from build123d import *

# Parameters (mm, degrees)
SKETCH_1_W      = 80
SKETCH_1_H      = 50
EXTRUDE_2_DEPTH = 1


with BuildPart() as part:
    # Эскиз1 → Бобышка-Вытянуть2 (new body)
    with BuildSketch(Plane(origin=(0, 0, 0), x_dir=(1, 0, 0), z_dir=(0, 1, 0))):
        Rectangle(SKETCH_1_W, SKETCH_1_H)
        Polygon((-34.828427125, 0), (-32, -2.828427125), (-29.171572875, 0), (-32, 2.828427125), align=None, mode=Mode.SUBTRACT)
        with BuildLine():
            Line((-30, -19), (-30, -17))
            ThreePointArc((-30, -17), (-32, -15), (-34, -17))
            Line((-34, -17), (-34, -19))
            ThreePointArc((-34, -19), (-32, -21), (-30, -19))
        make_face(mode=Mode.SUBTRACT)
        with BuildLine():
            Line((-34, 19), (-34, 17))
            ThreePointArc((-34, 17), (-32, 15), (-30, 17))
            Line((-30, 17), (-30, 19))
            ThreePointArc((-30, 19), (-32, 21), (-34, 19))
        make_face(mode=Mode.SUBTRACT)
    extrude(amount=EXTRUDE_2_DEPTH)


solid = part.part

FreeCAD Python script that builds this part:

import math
import FreeCAD as App
import Part
import Sketcher
from FreeCAD import Vector
Q = App.Units.Quantity


def add_polygon(sketch, points):
    """Adds a closed chain of lines whose ends are joined by coincident constraints."""
    first, n = sketch.GeometryCount, len(points)
    for a, b in zip(points, points[1:] + points[:1]):
        sketch.addGeometry(Part.LineSegment(App.Vector(*a, 0), App.Vector(*b, 0)), False)
    for i in range(n):
        sketch.addConstraint(Sketcher.Constraint("Coincident", first + i, 2, first + (i + 1) % n, 1))

doc = App.newDocument("Part")
body = doc.addObject("PartDesign::Body", "Body")

# Sketch on XZ plane
sketch1 = body.newObject("Sketcher::SketchObject", "Sketch")
sketch1.AttachmentSupport = (doc.getObject("XZ_Plane"), [""])
sketch1.MapMode = "FlatFace"
add_polygon(sketch1, [(-40, -25), (-40, 25), (40, 25), (40, -25)])  # lines 0-3
sketch1.addGeometry(Part.LineSegment(Vector(-30, 17, 0), Vector(-30, 19, 0)), False)  # 4
sketch1.addGeometry(Part.ArcOfCircle(Part.Circle(Vector(-32, 19, 0), Vector(0, 0, 1), 2), math.radians(0), math.radians(180)), False)  # 5
sketch1.addGeometry(Part.LineSegment(Vector(-34, 19, 0), Vector(-34, 17, 0)), False)  # 6
sketch1.addGeometry(Part.ArcOfCircle(Part.Circle(Vector(-32, 17, 0), Vector(0, 0, 1), 2), math.radians(180), math.radians(360)), False)  # 7
add_polygon(sketch1, [(-32, 2.828427), (-34.828427, 0), (-32, -2.828427), (-29.171573, 0)])  # lines 8-11
sketch1.addGeometry(Part.LineSegment(Vector(-34, -17, 0), Vector(-34, -19, 0)), False)  # 12
sketch1.addGeometry(Part.ArcOfCircle(Part.Circle(Vector(-32, -19, 0), Vector(0, 0, 1), 2), math.radians(180), math.radians(360)), False)  # 13
sketch1.addGeometry(Part.LineSegment(Vector(-30, -19, 0), Vector(-30, -17, 0)), False)  # 14
sketch1.addGeometry(Part.ArcOfCircle(Part.Circle(Vector(-32, -17, 0), Vector(0, 0, 1), 2), math.radians(0), math.radians(180)), False)  # 15
sketch1.addConstraint([
    Sketcher.Constraint("Tangent", 4, 2, 5, 1),
    Sketcher.Constraint("Tangent", 5, 2, 6, 1),
    Sketcher.Constraint("Tangent", 6, 2, 7, 1),
    Sketcher.Constraint("Tangent", 7, 2, 4, 1),
    Sketcher.Constraint("Tangent", 12, 2, 13, 1),
    Sketcher.Constraint("Tangent", 13, 2, 14, 1),
    Sketcher.Constraint("Tangent", 14, 2, 15, 1),
    Sketcher.Constraint("Tangent", 15, 2, 12, 1),
    Sketcher.Constraint("Vertical", 0),
    Sketcher.Constraint("Horizontal", 1),
    Sketcher.Constraint("Vertical", 2),
    Sketcher.Constraint("Horizontal", 3),
    Sketcher.Constraint("Vertical", 4),
    Sketcher.Constraint("Vertical", 6),
    Sketcher.Constraint("Vertical", 12),
    Sketcher.Constraint("Vertical", 14),
    Sketcher.Constraint("Equal", 7, 13),
    Sketcher.Constraint("Symmetric", 0, 2, 2, 2, -1, 1),
    Sketcher.Constraint("Symmetric", 5, 3, 13, 3, -1),
    Sketcher.Constraint("Symmetric", 9, 2, 11, 2, -1),
    Sketcher.Constraint("PointOnObject", 8, 2, -1),
    Sketcher.Constraint("PointOnObject", 10, 2, -1),
    Sketcher.Constraint("Perpendicular", 8, 9),
    Sketcher.Constraint("Perpendicular", 9, 10),
    Sketcher.Constraint("Vertical", 15, 3, 9, 2),
    Sketcher.Constraint("Equal", 6, 12),
    Sketcher.Constraint("Radius", 5, Q("2 mm")),
    Sketcher.Constraint("DistanceX", 1, 1, 1, 2, Q("80 mm")),
    Sketcher.Constraint("DistanceY", 0, 1, 0, 2, Q("50 mm")),
    Sketcher.Constraint("DistanceY", 4, 1, 4, 2, Q("2 mm")),
    Sketcher.Constraint("Distance", 8, Q("4 mm")),
    Sketcher.Constraint("DistanceX", 5, 3, -1, 1, Q("32 mm")),
    Sketcher.Constraint("DistanceY", -1, 1, 5, 3, Q("19 mm")),
])
pad1 = body.newObject("PartDesign::Pad", "Pad")
pad1.Profile = sketch1
pad1.Length = 1
pad1.Reversed = True

doc.recompute()
